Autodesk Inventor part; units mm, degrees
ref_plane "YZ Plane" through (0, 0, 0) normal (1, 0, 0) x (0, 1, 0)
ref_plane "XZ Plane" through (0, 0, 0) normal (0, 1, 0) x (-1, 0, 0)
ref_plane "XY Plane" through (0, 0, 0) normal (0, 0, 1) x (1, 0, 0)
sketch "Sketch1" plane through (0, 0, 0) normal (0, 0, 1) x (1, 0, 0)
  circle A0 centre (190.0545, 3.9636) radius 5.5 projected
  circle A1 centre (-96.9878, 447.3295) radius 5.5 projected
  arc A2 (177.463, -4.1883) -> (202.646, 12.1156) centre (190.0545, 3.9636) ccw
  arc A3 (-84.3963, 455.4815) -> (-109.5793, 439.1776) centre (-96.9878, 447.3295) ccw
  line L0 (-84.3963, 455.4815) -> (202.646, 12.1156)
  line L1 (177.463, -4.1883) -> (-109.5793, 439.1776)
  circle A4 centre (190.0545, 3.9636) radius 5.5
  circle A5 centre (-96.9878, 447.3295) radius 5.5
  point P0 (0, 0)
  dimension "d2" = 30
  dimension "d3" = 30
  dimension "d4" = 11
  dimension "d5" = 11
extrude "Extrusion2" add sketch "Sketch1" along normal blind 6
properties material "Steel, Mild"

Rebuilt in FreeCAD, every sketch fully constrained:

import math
import FreeCAD as App
import Part
import Sketcher
Q = App.Units.Quantity

doc = App.newDocument("Part")
body = doc.addObject("PartDesign::Body", "Body")

# Sketch on XY plane
sketch1 = body.newObject("Sketcher::SketchObject", "Sketch")
sketch1.AttachmentSupport = (doc.getObject("XY_Plane"), [""])
sketch1.MapMode = "FlatFace"
sketch1.addGeometry([
    Part.LineSegment(App.Vector(-110, 439, 0), App.Vector(177, -4, 0)),  # 0
    Part.ArcOfCircle(Part.Circle(App.Vector(190, 4, 0), App.Vector(0, 0, 1), 15), math.radians(-147), math.radians(33)),  # 1
    Part.LineSegment(App.Vector(203, 12, 0), App.Vector(-84, 455, 0)),  # 2
    Part.ArcOfCircle(Part.Circle(App.Vector(-97, 447, 0), App.Vector(0, 0, 1), 15), math.radians(33), math.radians(213)),  # 3
    Part.Circle(App.Vector(190, 4, 0), App.Vector(0, 0, 1), 6),  # 4
    Part.Circle(App.Vector(-97, 447, 0), App.Vector(0, 0, 1), 6),  # 5
], False)
sketch1.addConstraint([
    Sketcher.Constraint("Tangent", 0, 2, 1, 1),
    Sketcher.Constraint("Tangent", 1, 2, 2, 1),
    Sketcher.Constraint("Tangent", 2, 2, 3, 1),
    Sketcher.Constraint("Tangent", 3, 2, 0, 1),
    Sketcher.Constraint("Coincident", 4, 3, 1, 3),
    Sketcher.Constraint("Coincident", 5, 3, 3, 3),
    Sketcher.Constraint("Equal", 1, 3),
    Sketcher.Constraint("Equal", 4, 5),
    Sketcher.Constraint("Diameter", 4, 11.0),
    Sketcher.Constraint("Radius", 1, 15.0),
    Sketcher.Constraint("Angle", 0, Q("-57.0803 deg")),
    Sketcher.Constraint("Distance", 0, 528.173),
    Sketcher.Constraint("DistanceX", -1, 1, 0, 2, 177.463),
    Sketcher.Constraint("DistanceY", -1, 1, 1, 3, 3.9636),
])
pad1 = body.newObject("PartDesign::Pad", "Pad")
pad1.Profile = sketch1
pad1.Length = 6

doc.recompute()
